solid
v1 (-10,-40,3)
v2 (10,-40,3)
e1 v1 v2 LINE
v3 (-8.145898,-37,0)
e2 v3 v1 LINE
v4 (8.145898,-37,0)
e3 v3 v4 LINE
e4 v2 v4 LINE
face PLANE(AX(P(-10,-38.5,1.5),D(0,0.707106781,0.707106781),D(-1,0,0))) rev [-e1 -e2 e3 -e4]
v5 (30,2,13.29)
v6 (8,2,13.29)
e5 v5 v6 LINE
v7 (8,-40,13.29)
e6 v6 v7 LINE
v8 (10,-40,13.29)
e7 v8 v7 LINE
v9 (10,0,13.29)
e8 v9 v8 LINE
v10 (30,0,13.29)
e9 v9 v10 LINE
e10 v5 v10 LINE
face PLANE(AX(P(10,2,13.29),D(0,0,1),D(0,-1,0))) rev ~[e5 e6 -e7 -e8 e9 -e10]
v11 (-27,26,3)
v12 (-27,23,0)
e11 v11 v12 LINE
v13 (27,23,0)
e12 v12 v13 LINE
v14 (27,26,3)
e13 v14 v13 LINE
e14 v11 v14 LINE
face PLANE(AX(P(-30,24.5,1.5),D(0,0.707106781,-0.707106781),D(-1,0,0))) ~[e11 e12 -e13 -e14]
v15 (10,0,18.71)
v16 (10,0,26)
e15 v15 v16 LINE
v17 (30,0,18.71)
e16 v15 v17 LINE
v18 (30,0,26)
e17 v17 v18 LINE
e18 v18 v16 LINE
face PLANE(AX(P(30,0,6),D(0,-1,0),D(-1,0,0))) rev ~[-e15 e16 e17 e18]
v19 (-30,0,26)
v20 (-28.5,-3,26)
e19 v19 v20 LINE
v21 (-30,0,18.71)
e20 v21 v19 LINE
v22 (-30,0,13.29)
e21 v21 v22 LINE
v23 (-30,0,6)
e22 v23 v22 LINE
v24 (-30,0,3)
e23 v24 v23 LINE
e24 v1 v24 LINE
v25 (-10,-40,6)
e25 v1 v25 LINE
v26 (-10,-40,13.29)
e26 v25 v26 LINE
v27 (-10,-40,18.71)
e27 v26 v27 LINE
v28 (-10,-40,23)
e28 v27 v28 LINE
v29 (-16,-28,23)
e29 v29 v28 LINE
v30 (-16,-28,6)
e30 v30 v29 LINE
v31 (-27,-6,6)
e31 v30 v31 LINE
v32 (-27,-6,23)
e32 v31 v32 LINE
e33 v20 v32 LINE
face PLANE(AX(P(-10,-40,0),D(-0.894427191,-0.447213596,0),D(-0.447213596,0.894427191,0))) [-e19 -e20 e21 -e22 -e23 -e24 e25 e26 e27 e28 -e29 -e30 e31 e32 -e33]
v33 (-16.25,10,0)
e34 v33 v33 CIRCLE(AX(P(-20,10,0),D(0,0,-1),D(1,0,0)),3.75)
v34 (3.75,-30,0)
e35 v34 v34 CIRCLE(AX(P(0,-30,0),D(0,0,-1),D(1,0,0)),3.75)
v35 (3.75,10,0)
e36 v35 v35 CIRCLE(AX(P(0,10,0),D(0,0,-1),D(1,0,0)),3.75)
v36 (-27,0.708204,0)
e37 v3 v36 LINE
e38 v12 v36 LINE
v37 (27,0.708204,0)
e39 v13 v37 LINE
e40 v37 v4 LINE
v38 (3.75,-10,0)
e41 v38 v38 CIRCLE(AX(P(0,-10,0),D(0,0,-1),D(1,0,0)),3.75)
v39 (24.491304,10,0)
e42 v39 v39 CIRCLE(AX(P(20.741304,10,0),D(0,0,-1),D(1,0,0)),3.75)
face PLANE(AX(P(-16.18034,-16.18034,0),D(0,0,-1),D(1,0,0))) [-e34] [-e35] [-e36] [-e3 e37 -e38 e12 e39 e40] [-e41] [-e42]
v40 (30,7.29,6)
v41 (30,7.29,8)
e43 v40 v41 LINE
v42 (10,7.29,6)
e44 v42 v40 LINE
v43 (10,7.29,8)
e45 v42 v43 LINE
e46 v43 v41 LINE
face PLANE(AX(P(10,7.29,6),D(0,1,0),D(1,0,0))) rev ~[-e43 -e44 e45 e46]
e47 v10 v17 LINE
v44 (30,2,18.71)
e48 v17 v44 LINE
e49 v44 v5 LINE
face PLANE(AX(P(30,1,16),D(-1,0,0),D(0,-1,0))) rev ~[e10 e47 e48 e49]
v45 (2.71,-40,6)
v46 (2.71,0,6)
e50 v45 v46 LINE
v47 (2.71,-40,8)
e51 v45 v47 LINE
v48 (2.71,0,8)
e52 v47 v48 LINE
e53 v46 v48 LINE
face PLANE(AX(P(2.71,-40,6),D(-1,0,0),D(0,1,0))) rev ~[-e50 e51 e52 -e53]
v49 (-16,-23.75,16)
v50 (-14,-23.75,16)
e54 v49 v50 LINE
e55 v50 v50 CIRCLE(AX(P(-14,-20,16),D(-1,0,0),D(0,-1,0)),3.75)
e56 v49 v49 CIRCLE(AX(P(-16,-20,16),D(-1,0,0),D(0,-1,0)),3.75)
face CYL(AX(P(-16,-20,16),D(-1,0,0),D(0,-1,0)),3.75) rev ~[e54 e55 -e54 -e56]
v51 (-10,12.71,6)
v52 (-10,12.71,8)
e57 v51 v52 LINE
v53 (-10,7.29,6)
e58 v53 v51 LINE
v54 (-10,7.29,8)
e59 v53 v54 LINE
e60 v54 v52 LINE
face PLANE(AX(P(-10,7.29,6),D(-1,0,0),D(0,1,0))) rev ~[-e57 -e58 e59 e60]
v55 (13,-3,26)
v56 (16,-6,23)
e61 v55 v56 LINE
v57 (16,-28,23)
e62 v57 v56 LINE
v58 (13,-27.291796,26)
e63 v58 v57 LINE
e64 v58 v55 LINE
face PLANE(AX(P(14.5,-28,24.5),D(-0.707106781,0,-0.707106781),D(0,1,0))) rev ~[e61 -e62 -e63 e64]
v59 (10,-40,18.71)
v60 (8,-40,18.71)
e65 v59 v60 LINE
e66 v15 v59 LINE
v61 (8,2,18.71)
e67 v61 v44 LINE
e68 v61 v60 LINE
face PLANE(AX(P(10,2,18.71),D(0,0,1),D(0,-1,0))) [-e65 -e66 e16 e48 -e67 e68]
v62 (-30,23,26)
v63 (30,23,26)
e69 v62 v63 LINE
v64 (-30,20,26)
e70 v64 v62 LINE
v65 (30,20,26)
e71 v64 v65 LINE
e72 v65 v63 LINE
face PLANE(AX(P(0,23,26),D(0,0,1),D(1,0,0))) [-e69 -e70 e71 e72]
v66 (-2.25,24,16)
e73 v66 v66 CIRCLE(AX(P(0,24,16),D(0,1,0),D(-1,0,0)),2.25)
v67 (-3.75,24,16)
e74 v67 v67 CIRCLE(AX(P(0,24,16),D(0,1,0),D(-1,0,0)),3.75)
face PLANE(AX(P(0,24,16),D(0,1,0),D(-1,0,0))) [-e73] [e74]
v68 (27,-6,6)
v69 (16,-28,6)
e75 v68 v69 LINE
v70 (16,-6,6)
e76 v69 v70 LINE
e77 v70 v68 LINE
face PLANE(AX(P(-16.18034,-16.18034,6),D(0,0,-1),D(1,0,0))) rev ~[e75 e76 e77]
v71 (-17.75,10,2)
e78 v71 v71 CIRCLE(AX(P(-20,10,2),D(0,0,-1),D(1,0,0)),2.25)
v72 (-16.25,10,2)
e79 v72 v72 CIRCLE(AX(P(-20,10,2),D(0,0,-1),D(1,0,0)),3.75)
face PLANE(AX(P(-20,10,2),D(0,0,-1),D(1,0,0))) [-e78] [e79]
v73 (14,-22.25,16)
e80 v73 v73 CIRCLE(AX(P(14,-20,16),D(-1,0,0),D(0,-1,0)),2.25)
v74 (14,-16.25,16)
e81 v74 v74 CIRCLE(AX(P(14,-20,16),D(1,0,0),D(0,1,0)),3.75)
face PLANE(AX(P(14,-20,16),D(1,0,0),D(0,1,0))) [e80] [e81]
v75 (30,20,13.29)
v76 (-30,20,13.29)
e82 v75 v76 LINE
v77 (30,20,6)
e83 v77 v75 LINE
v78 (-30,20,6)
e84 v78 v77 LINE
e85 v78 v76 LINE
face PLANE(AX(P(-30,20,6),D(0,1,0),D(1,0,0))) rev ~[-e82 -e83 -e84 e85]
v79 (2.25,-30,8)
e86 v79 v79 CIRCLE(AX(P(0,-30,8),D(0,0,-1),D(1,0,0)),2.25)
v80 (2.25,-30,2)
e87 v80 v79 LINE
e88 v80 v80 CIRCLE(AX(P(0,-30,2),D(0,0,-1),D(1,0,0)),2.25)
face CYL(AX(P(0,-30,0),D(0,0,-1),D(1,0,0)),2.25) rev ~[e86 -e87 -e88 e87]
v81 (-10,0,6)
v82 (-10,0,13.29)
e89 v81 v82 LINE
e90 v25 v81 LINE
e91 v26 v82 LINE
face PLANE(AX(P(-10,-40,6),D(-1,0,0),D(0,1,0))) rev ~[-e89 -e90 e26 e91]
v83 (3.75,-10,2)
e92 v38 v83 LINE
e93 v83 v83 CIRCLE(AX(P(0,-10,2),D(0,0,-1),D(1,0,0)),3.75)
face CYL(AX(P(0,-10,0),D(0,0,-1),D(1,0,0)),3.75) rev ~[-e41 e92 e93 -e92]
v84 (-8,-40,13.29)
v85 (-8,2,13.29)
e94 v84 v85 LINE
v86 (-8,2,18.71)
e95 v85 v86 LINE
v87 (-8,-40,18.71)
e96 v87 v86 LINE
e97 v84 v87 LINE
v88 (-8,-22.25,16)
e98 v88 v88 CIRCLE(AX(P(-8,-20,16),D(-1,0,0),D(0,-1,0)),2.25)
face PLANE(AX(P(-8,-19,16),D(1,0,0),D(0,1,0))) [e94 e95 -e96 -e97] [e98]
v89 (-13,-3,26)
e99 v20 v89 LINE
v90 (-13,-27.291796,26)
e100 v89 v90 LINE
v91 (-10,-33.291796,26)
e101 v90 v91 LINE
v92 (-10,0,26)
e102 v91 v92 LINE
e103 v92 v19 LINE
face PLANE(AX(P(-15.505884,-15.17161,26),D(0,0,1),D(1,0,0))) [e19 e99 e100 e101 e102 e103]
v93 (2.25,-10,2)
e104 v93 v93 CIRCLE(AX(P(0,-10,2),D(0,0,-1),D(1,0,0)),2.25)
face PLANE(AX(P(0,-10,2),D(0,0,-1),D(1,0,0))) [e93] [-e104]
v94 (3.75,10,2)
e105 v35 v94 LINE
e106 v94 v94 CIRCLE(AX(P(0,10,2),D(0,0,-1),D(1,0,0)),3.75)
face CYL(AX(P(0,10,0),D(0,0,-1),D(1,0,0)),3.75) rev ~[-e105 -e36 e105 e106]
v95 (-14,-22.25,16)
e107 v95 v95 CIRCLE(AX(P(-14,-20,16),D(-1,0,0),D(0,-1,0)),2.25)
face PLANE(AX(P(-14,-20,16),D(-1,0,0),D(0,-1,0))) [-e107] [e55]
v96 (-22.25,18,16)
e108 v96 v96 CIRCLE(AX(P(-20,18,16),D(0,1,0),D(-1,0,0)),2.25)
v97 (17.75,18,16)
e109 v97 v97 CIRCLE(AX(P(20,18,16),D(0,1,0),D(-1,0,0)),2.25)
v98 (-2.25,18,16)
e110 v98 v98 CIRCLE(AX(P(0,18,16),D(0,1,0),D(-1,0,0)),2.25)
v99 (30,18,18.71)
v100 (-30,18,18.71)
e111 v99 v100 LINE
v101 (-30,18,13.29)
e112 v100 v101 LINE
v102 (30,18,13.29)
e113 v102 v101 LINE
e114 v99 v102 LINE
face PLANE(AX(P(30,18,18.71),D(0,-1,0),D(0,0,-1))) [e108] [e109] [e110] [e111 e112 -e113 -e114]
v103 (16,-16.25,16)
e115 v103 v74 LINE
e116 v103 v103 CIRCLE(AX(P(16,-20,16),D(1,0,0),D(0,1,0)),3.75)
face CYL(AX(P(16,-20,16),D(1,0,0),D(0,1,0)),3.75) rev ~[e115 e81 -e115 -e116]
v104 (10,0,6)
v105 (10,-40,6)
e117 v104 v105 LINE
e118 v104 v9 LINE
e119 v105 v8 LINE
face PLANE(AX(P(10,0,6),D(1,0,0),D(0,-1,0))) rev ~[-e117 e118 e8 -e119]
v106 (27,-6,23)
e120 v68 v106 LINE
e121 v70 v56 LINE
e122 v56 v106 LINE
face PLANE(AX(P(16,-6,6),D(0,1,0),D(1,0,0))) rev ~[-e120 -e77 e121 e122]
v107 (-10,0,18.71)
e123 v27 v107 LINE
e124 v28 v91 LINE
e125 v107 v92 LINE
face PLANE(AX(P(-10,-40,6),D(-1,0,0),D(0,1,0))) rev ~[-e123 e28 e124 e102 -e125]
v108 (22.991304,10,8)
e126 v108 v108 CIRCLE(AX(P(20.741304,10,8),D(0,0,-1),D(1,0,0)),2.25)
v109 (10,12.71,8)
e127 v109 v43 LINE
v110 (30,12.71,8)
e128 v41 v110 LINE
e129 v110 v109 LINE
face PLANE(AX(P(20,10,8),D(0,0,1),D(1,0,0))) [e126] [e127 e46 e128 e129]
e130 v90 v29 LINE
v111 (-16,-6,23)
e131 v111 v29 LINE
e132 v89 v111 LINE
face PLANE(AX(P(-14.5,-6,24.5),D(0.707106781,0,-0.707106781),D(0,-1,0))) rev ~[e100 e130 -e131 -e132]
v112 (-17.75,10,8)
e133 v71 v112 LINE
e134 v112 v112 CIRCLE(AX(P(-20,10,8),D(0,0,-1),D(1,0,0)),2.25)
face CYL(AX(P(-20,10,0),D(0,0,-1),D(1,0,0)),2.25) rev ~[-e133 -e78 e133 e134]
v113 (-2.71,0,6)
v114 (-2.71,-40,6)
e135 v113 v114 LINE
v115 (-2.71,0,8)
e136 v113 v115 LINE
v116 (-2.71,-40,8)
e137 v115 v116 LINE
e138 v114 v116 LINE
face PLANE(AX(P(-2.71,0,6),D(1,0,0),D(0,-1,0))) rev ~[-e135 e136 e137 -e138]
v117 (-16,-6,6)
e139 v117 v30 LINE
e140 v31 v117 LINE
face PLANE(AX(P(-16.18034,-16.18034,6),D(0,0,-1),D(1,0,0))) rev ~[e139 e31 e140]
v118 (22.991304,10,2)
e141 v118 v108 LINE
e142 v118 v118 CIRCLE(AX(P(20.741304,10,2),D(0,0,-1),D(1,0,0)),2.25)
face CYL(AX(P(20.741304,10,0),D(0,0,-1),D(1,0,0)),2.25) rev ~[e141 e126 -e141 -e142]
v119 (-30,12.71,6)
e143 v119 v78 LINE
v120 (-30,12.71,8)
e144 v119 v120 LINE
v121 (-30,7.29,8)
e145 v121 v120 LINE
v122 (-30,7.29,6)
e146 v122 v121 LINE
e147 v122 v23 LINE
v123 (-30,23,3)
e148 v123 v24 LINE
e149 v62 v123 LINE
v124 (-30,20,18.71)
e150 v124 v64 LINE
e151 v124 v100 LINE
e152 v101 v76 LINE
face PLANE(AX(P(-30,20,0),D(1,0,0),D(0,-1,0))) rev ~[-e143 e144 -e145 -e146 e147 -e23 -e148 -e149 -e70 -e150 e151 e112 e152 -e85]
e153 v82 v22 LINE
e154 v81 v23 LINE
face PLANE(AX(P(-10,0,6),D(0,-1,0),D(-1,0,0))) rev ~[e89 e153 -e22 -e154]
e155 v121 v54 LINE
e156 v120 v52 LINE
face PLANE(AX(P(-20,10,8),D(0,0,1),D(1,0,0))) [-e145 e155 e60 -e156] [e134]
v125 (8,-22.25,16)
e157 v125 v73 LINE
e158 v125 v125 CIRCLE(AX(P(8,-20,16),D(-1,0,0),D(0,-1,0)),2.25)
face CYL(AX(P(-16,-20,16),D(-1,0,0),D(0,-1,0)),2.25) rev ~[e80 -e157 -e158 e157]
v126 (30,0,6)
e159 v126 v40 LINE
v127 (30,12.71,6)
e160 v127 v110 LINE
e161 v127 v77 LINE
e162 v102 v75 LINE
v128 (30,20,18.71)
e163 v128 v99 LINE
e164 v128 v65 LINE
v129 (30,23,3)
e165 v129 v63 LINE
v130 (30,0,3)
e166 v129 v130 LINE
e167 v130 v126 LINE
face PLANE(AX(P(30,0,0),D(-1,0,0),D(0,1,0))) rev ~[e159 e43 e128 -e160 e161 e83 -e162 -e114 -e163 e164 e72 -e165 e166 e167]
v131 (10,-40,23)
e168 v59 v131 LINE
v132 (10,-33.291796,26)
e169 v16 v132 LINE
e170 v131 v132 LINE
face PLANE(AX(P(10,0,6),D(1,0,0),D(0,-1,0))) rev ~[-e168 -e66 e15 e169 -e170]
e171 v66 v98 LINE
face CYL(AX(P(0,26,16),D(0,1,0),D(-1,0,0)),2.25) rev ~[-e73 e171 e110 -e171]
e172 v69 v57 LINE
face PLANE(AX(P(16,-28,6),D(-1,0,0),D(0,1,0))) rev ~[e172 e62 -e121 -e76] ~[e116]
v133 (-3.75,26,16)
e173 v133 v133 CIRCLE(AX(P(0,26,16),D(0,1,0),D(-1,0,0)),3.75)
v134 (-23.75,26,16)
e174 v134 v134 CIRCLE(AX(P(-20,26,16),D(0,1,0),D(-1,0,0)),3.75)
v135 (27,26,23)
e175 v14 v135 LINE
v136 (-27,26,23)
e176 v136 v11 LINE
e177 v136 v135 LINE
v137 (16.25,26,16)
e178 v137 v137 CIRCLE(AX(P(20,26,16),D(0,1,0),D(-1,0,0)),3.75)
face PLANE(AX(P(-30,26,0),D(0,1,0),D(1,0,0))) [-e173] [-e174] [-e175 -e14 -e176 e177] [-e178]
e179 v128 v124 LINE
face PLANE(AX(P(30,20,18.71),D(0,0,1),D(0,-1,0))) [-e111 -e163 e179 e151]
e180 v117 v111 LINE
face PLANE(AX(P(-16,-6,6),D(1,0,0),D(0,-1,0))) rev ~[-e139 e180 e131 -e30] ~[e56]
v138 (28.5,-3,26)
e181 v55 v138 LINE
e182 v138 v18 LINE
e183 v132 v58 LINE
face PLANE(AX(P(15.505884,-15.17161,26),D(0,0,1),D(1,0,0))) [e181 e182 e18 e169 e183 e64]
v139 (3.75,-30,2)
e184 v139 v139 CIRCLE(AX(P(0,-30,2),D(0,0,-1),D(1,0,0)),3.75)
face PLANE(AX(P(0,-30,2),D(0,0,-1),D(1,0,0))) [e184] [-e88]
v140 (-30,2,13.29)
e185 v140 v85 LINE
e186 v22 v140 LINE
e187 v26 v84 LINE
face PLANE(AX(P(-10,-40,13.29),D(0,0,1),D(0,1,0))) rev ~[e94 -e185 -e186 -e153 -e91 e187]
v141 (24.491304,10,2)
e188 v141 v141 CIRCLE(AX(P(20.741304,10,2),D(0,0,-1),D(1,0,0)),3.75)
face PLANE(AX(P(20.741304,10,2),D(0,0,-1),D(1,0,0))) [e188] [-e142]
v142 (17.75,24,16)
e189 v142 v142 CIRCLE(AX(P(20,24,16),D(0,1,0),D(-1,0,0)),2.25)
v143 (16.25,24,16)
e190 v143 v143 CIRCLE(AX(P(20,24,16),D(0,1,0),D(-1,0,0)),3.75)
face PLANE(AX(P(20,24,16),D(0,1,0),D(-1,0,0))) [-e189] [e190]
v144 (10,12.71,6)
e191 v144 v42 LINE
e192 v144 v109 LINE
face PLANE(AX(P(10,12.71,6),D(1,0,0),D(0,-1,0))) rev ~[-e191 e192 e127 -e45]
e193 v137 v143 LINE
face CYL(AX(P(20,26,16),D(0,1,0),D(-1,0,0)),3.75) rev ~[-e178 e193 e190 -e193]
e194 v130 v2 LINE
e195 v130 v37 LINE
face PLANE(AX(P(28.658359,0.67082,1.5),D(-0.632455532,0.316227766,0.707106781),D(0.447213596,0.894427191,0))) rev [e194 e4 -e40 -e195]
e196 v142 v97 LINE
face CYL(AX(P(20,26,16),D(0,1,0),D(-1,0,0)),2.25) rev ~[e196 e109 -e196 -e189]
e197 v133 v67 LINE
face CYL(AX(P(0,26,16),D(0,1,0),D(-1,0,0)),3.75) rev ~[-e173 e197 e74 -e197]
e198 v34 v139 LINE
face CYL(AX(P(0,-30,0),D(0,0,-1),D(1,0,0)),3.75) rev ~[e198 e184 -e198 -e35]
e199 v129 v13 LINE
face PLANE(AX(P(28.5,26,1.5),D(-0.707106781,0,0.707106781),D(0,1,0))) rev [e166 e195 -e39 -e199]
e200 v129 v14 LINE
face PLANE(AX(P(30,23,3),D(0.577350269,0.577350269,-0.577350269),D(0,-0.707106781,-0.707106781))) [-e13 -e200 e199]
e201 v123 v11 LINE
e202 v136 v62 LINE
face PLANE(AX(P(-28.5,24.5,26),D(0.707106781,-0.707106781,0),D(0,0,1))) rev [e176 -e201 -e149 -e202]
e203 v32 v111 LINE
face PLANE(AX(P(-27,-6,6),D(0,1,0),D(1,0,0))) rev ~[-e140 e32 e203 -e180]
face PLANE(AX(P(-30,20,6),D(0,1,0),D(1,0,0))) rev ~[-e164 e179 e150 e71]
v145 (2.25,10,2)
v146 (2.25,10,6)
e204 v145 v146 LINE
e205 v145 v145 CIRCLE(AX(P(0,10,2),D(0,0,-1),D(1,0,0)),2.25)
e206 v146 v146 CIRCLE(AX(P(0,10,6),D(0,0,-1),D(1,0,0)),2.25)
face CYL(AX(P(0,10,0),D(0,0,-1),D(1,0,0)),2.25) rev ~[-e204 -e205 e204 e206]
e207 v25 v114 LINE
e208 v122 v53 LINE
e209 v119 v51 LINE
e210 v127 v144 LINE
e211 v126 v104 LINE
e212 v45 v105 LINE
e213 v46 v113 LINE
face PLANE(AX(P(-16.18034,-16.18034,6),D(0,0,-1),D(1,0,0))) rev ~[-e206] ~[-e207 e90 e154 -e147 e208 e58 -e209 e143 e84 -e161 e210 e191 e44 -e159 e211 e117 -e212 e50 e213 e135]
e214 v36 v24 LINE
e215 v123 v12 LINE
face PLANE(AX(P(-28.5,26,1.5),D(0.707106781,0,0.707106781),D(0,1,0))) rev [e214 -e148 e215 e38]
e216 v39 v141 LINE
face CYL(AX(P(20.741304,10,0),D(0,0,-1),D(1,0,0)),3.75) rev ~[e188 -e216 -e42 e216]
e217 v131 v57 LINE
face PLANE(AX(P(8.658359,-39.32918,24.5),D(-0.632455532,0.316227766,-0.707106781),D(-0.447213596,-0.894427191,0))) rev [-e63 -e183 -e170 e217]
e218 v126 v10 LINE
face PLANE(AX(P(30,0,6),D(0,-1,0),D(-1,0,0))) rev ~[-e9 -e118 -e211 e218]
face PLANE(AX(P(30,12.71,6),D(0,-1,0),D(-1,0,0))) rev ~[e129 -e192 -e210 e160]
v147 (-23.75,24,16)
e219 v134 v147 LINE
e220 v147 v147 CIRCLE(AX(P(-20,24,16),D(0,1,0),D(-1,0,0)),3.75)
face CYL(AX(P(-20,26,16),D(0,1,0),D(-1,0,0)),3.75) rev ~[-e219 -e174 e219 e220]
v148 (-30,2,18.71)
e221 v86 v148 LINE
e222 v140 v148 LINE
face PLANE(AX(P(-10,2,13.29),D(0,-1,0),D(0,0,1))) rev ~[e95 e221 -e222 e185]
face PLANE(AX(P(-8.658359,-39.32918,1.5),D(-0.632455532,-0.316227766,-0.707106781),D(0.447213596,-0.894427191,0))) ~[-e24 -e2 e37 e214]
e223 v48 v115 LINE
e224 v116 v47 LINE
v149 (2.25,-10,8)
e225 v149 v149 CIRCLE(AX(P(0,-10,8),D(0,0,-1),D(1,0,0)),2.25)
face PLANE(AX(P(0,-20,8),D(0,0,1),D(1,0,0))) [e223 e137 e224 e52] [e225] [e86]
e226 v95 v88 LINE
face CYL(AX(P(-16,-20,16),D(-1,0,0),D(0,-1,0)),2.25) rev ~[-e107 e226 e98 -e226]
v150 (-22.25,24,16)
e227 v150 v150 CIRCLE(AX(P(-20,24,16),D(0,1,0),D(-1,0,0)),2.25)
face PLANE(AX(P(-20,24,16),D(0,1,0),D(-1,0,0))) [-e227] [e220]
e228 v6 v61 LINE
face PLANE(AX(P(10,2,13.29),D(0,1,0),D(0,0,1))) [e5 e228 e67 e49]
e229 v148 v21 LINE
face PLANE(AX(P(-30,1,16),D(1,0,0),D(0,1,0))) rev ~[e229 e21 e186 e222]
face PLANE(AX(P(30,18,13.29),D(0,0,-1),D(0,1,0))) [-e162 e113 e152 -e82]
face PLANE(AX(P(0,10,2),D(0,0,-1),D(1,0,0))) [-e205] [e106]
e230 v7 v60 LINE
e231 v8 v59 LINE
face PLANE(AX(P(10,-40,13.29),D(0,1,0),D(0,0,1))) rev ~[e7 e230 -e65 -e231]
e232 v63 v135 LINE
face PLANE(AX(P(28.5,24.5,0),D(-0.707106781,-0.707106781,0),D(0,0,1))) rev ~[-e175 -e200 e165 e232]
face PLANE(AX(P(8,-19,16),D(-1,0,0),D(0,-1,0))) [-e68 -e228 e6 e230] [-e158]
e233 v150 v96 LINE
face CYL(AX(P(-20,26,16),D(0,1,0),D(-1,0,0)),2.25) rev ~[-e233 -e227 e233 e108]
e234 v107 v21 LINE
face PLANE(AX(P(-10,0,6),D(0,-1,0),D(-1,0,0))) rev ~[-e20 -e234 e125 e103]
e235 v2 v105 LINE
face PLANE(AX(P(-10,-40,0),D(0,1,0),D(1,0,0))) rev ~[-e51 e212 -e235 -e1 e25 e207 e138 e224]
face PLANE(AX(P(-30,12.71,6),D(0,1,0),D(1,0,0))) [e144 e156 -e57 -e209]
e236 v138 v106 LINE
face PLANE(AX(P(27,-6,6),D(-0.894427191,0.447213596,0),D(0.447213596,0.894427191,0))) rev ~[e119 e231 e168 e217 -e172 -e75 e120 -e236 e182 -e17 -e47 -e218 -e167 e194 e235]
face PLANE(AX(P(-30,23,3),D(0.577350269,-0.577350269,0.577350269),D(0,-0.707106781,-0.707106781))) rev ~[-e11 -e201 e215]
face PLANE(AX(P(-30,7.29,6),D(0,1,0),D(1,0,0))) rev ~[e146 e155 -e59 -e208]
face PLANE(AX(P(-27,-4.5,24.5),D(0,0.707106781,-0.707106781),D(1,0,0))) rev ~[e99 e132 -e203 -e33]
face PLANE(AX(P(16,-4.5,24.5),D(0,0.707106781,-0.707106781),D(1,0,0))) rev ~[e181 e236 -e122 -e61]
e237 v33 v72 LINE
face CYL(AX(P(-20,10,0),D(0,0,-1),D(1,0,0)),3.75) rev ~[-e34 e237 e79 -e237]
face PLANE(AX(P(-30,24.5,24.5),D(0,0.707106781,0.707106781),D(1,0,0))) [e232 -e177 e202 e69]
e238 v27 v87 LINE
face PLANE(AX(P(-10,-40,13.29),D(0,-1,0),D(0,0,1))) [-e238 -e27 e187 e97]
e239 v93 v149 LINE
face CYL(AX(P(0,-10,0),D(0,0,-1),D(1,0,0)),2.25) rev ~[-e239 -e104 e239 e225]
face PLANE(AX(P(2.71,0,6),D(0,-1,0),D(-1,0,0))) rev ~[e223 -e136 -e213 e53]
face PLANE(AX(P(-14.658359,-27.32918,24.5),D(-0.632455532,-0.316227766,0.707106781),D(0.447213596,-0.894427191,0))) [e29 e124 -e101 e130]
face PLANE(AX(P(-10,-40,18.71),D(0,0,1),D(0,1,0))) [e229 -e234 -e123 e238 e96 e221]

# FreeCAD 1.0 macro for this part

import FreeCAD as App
import Part
import Sketcher

V = App.Vector


def edges_at(feature, points):
    """Names of the edges that pass closest to the given points."""
    edges = feature.Shape.Edges
    near = lambda p: min(range(len(edges)), key=lambda i: edges[i].distToShape(Part.Vertex(*p))[0])
    return sorted({f"Edge{near(p) + 1}" for p in points})

doc = App.newDocument("Part")
body = doc.addObject("PartDesign::Body", "Body")

# Sketch on XY plane
sketch1 = body.newObject("Sketcher::SketchObject", "Sketch")
sketch1.AttachmentSupport = (doc.getObject("XY_Plane"), [""])
sketch1.MapMode = "FlatFace"
sketch1.addGeometry([
    Part.LineSegment(V(-30, 0, 0), V(-10, 0, 0)),  # 0
    Part.LineSegment(V(-10, 0, 0), V(-10, -40, 0)),  # 1
    Part.LineSegment(V(-10, -40, 0), V(10, -40, 0)),  # 2
    Part.LineSegment(V(10, -40, 0), V(10, 0, 0)),  # 3
    Part.LineSegment(V(10, 0, 0), V(30, 0, 0)),  # 4
    Part.LineSegment(V(30, 0, 0), V(30, 20, 0)),  # 5
    Part.LineSegment(V(30, 20, 0), V(-30, 20, 0)),  # 6
    Part.LineSegment(V(-30, 20, 0), V(-30, 0, 0)),  # 7
], False)
sketch1.addConstraint([
    Sketcher.Constraint("Coincident", 0, 2, 1, 1),
    Sketcher.Constraint("Coincident", 1, 2, 2, 1),
    Sketcher.Constraint("Coincident", 2, 2, 3, 1),
    Sketcher.Constraint("Coincident", 3, 2, 4, 1),
    Sketcher.Constraint("Coincident", 4, 2, 5, 1),
    Sketcher.Constraint("Coincident", 5, 2, 6, 1),
    Sketcher.Constraint("Coincident", 6, 2, 7, 1),
    Sketcher.Constraint("Coincident", 7, 2, 0, 1),
    Sketcher.Constraint("Horizontal", 0),
    Sketcher.Constraint("Vertical", 1),
    Sketcher.Constraint("Horizontal", 2),
    Sketcher.Constraint("Vertical", 3),
    Sketcher.Constraint("Horizontal", 4),
    Sketcher.Constraint("Vertical", 5),
    Sketcher.Constraint("Horizontal", 6),
    Sketcher.Constraint("Vertical", 7),
    Sketcher.Constraint("Symmetric", 0, 2, 3, 2, -1, 1),
    Sketcher.Constraint("Symmetric", 4, 2, 7, 2, -2),
    Sketcher.Constraint("Equal", 0, 2),
    Sketcher.Constraint("Equal", 4, 5),
    Sketcher.Constraint("DistanceX", 0, 1, 0, 2, 20.0),
    Sketcher.Constraint("DistanceY", 1, 2, 1, 1, 40.0),
])
pad1 = body.newObject("PartDesign::Pad", "Pad")
pad1.Profile = sketch1
pad1.Length = 6

# Sketch on XY plane
sketch2 = body.newObject("Sketcher::SketchObject", "Sketch001")
sketch2.AttachmentSupport = (doc.getObject("XY_Plane"), [""])
sketch2.MapMode = "FlatFace"
sketch2.AttachmentOffset = App.Placement(V(0, 0, 6), App.Rotation())
sketch2.addGeometry([
    Part.LineSegment(V(2.71, 0, 0), V(-2.71, 0, 0)),  # 0
    Part.LineSegment(V(-2.71, 0, 0), V(-2.71, -40, 0)),  # 1
    Part.LineSegment(V(-2.71, -40, 0), V(2.71, -40, 0)),  # 2
    Part.LineSegment(V(2.71, -40, 0), V(2.71, 0, 0)),  # 3
    Part.LineSegment(V(10, 12.71, 0), V(10, 7.29, 0)),  # 4
    Part.LineSegment(V(10, 7.29, 0), V(30, 7.29, 0)),  # 5
    Part.LineSegment(V(30, 7.29, 0), V(30, 12.71, 0)),  # 6
    Part.LineSegment(V(30, 12.71, 0), V(10, 12.71, 0)),  # 7
    Part.LineSegment(V(-30, 12.71, 0), V(-30, 7.29, 0)),  # 8
    Part.LineSegment(V(-30, 7.29, 0), V(-10, 7.29, 0)),  # 9
    Part.LineSegment(V(-10, 7.29, 0), V(-10, 12.71, 0)),  # 10
    Part.LineSegment(V(-10, 12.71, 0), V(-30, 12.71, 0)),  # 11
], False)
sketch2.addConstraint([
    Sketcher.Constraint("Coincident", 0, 2, 1, 1),
    Sketcher.Constraint("Coincident", 1, 2, 2, 1),
    Sketcher.Constraint("Coincident", 2, 2, 3, 1),
    Sketcher.Constraint("Coincident", 3, 2, 0, 1),
    Sketcher.Constraint("Coincident", 4, 2, 5, 1),
    Sketcher.Constraint("Coincident", 5, 2, 6, 1),
    Sketcher.Constraint("Coincident", 6, 2, 7, 1),
    Sketcher.Constraint("Coincident", 7, 2, 4, 1),
    Sketcher.Constraint("Coincident", 8, 2, 9, 1),
    Sketcher.Constraint("Coincident", 9, 2, 10, 1),
    Sketcher.Constraint("Coincident", 10, 2, 11, 1),
    Sketcher.Constraint("Coincident", 11, 2, 8, 1),
    Sketcher.Constraint("Horizontal", 0),
    Sketcher.Constraint("Vertical", 1),
    Sketcher.Constraint("Horizontal", 2),
    Sketcher.Constraint("Vertical", 3),
    Sketcher.Constraint("Vertical", 4),
    Sketcher.Constraint("Horizontal", 5),
    Sketcher.Constraint("Vertical", 6),
    Sketcher.Constraint("Horizontal", 7),
    Sketcher.Constraint("Vertical", 8),
    Sketcher.Constraint("Horizontal", 9),
    Sketcher.Constraint("Vertical", 10),
    Sketcher.Constraint("Horizontal", 11),
    Sketcher.Constraint("Symmetric", 0, 2, 3, 2, -1, 1),
    Sketcher.Constraint("Symmetric", 5, 2, 8, 2, -2),
    Sketcher.Constraint("Symmetric", 7, 2, 10, 2, -2),
    Sketcher.Constraint("Equal", 2, 4),
    Sketcher.Constraint("DistanceX", 5, 1, 5, 2, 20.0),
    Sketcher.Constraint("DistanceY", 1, 2, 1, 1, 40.0),
    Sketcher.Constraint("DistanceX", -1, 1, 4, 2, 10.0),
    Sketcher.Constraint("DistanceX", 0, 2, 0, 1, 5.42),
    Sketcher.Constraint("DistanceY", -1, 1, 4, 2, 7.29),
])
pad2 = body.newObject("PartDesign::Pad", "Pad001")
pad2.Profile = sketch2
pad2.Length = 2

# Sketch on XY plane
sketch3 = body.newObject("Sketcher::SketchObject", "Sketch002")
sketch3.AttachmentSupport = (doc.getObject("XY_Plane"), [""])
sketch3.MapMode = "FlatFace"
sketch3.addGeometry([
    Part.Circle(V(-20, 10, 0), V(0, 0, 1), 2.25),  # 0
    Part.Circle(V(0, -10, 0), V(0, 0, 1), 2.25),  # 1
    Part.Circle(V(0, -30, 0), V(0, 0, 1), 2.25),  # 2
    Part.Circle(V(20.741304, 10, 0), V(0, 0, 1), 2.25),  # 3
    Part.Circle(V(0, 10, 0), V(0, 0, 1), 2.25),  # 4
], False)
sketch3.addConstraint([
    Sketcher.Constraint("Equal", 0, 1),
    Sketcher.Constraint("Equal", 1, 2),
    Sketcher.Constraint("Equal", 2, 3),
    Sketcher.Constraint("Equal", 3, 4),
    Sketcher.Constraint("Symmetric", 1, 3, 4, 3, -1, 1),
    Sketcher.Constraint("PointOnObject", 1, 3, -2),
    Sketcher.Constraint("PointOnObject", 2, 3, -2),
    Sketcher.Constraint("Horizontal", 0, 3, 3, 3),
    Sketcher.Constraint("Horizontal", 3, 3, 4, 3),
    Sketcher.Constraint("Diameter", 0, 4.5),
    Sketcher.Constraint("DistanceX", 0, 3, -1, 1, 20.0),
    Sketcher.Constraint("DistanceY", -1, 1, 0, 3, 10.0),
    Sketcher.Constraint("DistanceY", 2, 3, -1, 1, 30.0),
    Sketcher.Constraint("DistanceX", -1, 1, 3, 3, 20.741304),
])
pocket1 = body.newObject("PartDesign::Pocket", "Pocket")
pocket1.Profile = sketch3
pocket1.Type = "ThroughAll"
pocket1.Reversed = True

# Sketch on XY plane
sketch4 = body.newObject("Sketcher::SketchObject", "Sketch003")
sketch4.AttachmentSupport = (doc.getObject("XY_Plane"), [""])
sketch4.MapMode = "FlatFace"
sketch4.addGeometry([
    Part.Circle(V(0, -30, 0), V(0, 0, 1), 3.75),  # 0
    Part.Circle(V(0, -10, 0), V(0, 0, 1), 3.75),  # 1
    Part.Circle(V(20.741304, 10, 0), V(0, 0, 1), 3.75),  # 2
    Part.Circle(V(-20, 10, 0), V(0, 0, 1), 3.75),  # 3
    Part.Circle(V(0, 10, 0), V(0, 0, 1), 3.75),  # 4
], False)
sketch4.addConstraint([
    Sketcher.Constraint("Equal", 0, 1),
    Sketcher.Constraint("Equal", 1, 2),
    Sketcher.Constraint("Equal", 2, 3),
    Sketcher.Constraint("Equal", 3, 4),
    Sketcher.Constraint("Symmetric", 1, 3, 4, 3, -1, 1),
    Sketcher.Constraint("PointOnObject", 0, 3, -2),
    Sketcher.Constraint("PointOnObject", 1, 3, -2),
    Sketcher.Constraint("Horizontal", 2, 3, 3, 3),
    Sketcher.Constraint("Horizontal", 3, 3, 4, 3),
    Sketcher.Constraint("Diameter", 0, 7.5),
    Sketcher.Constraint("DistanceY", 0, 3, -1, 1, 30.0),
    Sketcher.Constraint("DistanceY", 1, 3, -1, 1, 10.0),
    Sketcher.Constraint("DistanceX", 3, 3, -1, 1, 20.0),
    Sketcher.Constraint("DistanceX", -1, 1, 2, 3, 20.741304),
])
pocket2 = body.newObject("PartDesign::Pocket", "Pocket001")
pocket2.Profile = sketch4
pocket2.Length = 2
pocket2.Reversed = True

# Sketch on XY plane
sketch5 = body.newObject("Sketcher::SketchObject", "Sketch004")
sketch5.AttachmentSupport = (doc.getObject("XY_Plane"), [""])
sketch5.MapMode = "FlatFace"
sketch5.addGeometry([
    Part.LineSegment(V(-10, 0, 0), V(-10, -40, 0)),  # 0
    Part.LineSegment(V(-10, -40, 0), V(-30, 0, 0)),  # 1
    Part.LineSegment(V(-30, 0, 0), V(-10, 0, 0)),  # 2
    Part.LineSegment(V(30, 0, 0), V(10, -40, 0)),  # 3
    Part.LineSegment(V(10, -40, 0), V(10, 0, 0)),  # 4
    Part.LineSegment(V(10, 0, 0), V(30, 0, 0)),  # 5
    Part.LineSegment(V(-30, 20, 0), V(-30, 26, 0)),  # 6
    Part.LineSegment(V(-30, 26, 0), V(30, 26, 0)),  # 7
    Part.LineSegment(V(30, 26, 0), V(30, 20, 0)),  # 8
    Part.LineSegment(V(30, 20, 0), V(-30, 20, 0)),  # 9
], False)
sketch5.addConstraint([
    Sketcher.Constraint("Coincident", 0, 2, 1, 1),
    Sketcher.Constraint("Coincident", 1, 2, 2, 1),
    Sketcher.Constraint("Coincident", 2, 2, 0, 1),
    Sketcher.Constraint("Coincident", 3, 2, 4, 1),
    Sketcher.Constraint("Coincident", 4, 2, 5, 1),
    Sketcher.Constraint("Coincident", 5, 2, 3, 1),
    Sketcher.Constraint("Coincident", 6, 2, 7, 1),
    Sketcher.Constraint("Coincident", 7, 2, 8, 1),
    Sketcher.Constraint("Coincident", 8, 2, 9, 1),
    Sketcher.Constraint("Coincident", 9, 2, 6, 1),
    Sketcher.Constraint("Vertical", 0),
    Sketcher.Constraint("Horizontal", 2),
    Sketcher.Constraint("Vertical", 4),
    Sketcher.Constraint("Horizontal", 5),
    Sketcher.Constraint("Vertical", 6),
    Sketcher.Constraint("Horizontal", 7),
    Sketcher.Constraint("Vertical", 8),
    Sketcher.Constraint("Horizontal", 9),
    Sketcher.Constraint("Symmetric", 2, 2, 4, 2, -1, 1),
    Sketcher.Constraint("Symmetric", 1, 2, 5, 2, -2),
    Sketcher.Constraint("Horizontal", 0, 2, 3, 2),
    Sketcher.Constraint("Vertical", 1, 2, 6, 2),
    Sketcher.Constraint("Vertical", 5, 2, 7, 2),
    Sketcher.Constraint("DistanceX", 2, 1, 2, 2, 20.0),
    Sketcher.Constraint("DistanceX", 7, 1, 7, 2, 60.0),
    Sketcher.Constraint("DistanceY", 0, 2, 0, 1, 40.0),
    Sketcher.Constraint("DistanceY", 6, 1, 6, 2, 6.0),
    Sketcher.Constraint("DistanceY", -1, 1, 6, 2, 26.0),
])
pad3 = body.newObject("PartDesign::Pad", "Pad002")
pad3.Profile = sketch5
pad3.Length = 6

# Sketch on XY plane
sketch6 = body.newObject("Sketcher::SketchObject", "Sketch005")
sketch6.AttachmentSupport = (doc.getObject("XY_Plane"), [""])
sketch6.MapMode = "FlatFace"
sketch6.AttachmentOffset = App.Placement(V(0, 0, 6), App.Rotation())
sketch6.addGeometry([
    Part.LineSegment(V(30, 0, 0), V(10, 0, 0)),  # 0
    Part.LineSegment(V(10, 0, 0), V(10, -40, 0)),  # 1
    Part.LineSegment(V(10, -40, 0), V(16, -28, 0)),  # 2
    Part.LineSegment(V(16, -28, 0), V(16, -6, 0)),  # 3
    Part.LineSegment(V(16, -6, 0), V(27, -6, 0)),  # 4
    Part.LineSegment(V(27, -6, 0), V(30, 0, 0)),  # 5
    Part.LineSegment(V(-10, -40, 0), V(-10, 0, 0)),  # 6
    Part.LineSegment(V(-10, 0, 0), V(-30, 0, 0)),  # 7
    Part.LineSegment(V(-30, 0, 0), V(-27, -6, 0)),  # 8
    Part.LineSegment(V(-27, -6, 0), V(-16, -6, 0)),  # 9
    Part.LineSegment(V(-16, -6, 0), V(-16, -28, 0)),  # 10
    Part.LineSegment(V(-16, -28, 0), V(-10, -40, 0)),  # 11
    Part.LineSegment(V(-30, 26, 0), V(-30, 20, 0)),  # 12
    Part.LineSegment(V(-30, 20, 0), V(30, 20, 0)),  # 13
    Part.LineSegment(V(30, 20, 0), V(30, 26, 0)),  # 14
    Part.LineSegment(V(30, 26, 0), V(-30, 26, 0)),  # 15
], False)
sketch6.addConstraint([
    Sketcher.Constraint("Coincident", 0, 2, 1, 1),
    Sketcher.Constraint("Coincident", 1, 2, 2, 1),
    Sketcher.Constraint("Coincident", 2, 2, 3, 1),
    Sketcher.Constraint("Coincident", 3, 2, 4, 1),
    Sketcher.Constraint("Coincident", 4, 2, 5, 1),
    Sketcher.Constraint("Coincident", 5, 2, 0, 1),
    Sketcher.Constraint("Coincident", 6, 2, 7, 1),
    Sketcher.Constraint("Coincident", 7, 2, 8, 1),
    Sketcher.Constraint("Coincident", 8, 2, 9, 1),
    Sketcher.Constraint("Coincident", 9, 2, 10, 1),
    Sketcher.Constraint("Coincident", 10, 2, 11, 1),
    Sketcher.Constraint("Coincident", 11, 2, 6, 1),
    Sketcher.Constraint("Coincident", 12, 2, 13, 1),
    Sketcher.Constraint("Coincident", 13, 2, 14, 1),
    Sketcher.Constraint("Coincident", 14, 2, 15, 1),
    Sketcher.Constraint("Coincident", 15, 2, 12, 1),
    Sketcher.Constraint("Horizontal", 0),
    Sketcher.Constraint("Vertical", 1),
    Sketcher.Constraint("Vertical", 3),
    Sketcher.Constraint("Horizontal", 4),
    Sketcher.Constraint("Vertical", 6),
    Sketcher.Constraint("Horizontal", 7),
    Sketcher.Constraint("Horizontal", 9),
    Sketcher.Constraint("Vertical", 10),
    Sketcher.Constraint("Vertical", 12),
    Sketcher.Constraint("Horizontal", 13),
    Sketcher.Constraint("Vertical", 14),
    Sketcher.Constraint("Horizontal", 15),
    Sketcher.Constraint("Symmetric", 0, 2, 6, 2, -1, 1),
    Sketcher.Constraint("Symmetric", 5, 2, 7, 2, -2),
    Sketcher.Constraint("Symmetric", 4, 2, 8, 2, -2),
    Sketcher.Constraint("Symmetric", 2, 2, 10, 2, -2),
    Sketcher.Constraint("Parallel", 2, 5),
    Sketcher.Constraint("Parallel", 8, 11),
    Sketcher.Constraint("Vertical", 7, 2, 12, 2),
    Sketcher.Constraint("Vertical", 5, 2, 13, 2),
    Sketcher.Constraint("DistanceX", 0, 2, 0, 1, 20.0),
    Sketcher.Constraint("DistanceX", 4, 1, 4, 2, 11.0),
    Sketcher.Constraint("DistanceX", 13, 1, 13, 2, 60.0),
    Sketcher.Constraint("DistanceY", 1, 2, 1, 1, 40.0),
    Sketcher.Constraint("DistanceY", 3, 1, 3, 2, 22.0),
    Sketcher.Constraint("DistanceY", 12, 2, 12, 1, 6.0),
    Sketcher.Constraint("DistanceX", -1, 1, 2, 2, 16.0),
    Sketcher.Constraint("DistanceY", -1, 1, 12, 2, 20.0),
])
pad4 = body.newObject("PartDesign::Pad", "Pad003")
pad4.Profile = sketch6
pad4.Length = 20

# Sketch on YZ plane
sketch7 = body.newObject("Sketcher::SketchObject", "Sketch006")
sketch7.AttachmentSupport = (doc.getObject("YZ_Plane"), [""])
sketch7.MapMode = "FlatFace"
sketch7.AttachmentOffset = App.Placement(V(0, 0, 30), App.Rotation())
sketch7.addGeometry([
    Part.LineSegment(V(20, 13.29, 0), V(20, 18.71, 0)),
    Part.LineSegment(V(20, 18.71, 0), V(18, 18.71, 0)),
    Part.LineSegment(V(18, 18.71, 0), V(18, 13.29, 0)),
    Part.LineSegment(V(18, 13.29, 0), V(20, 13.29, 0)),
], False)
sketch7.addConstraint([
    Sketcher.Constraint("Coincident", 0, 2, 1, 1),
    Sketcher.Constraint("Coincident", 1, 2, 2, 1),
    Sketcher.Constraint("Coincident", 2, 2, 3, 1),
    Sketcher.Constraint("Coincident", 3, 2, 0, 1),
    Sketcher.Constraint("Vertical", 0),
    Sketcher.Constraint("Horizontal", 1),
    Sketcher.Constraint("Vertical", 2),
    Sketcher.Constraint("Horizontal", 3),
    Sketcher.Constraint("DistanceX", 1, 2, 1, 1, 2.0),
    Sketcher.Constraint("DistanceX", -1, 1, 0, 2, 20.0),
    Sketcher.Constraint("DistanceY", 0, 1, 0, 2, 5.42),
    Sketcher.Constraint("DistanceY", -1, 1, 0, 2, 18.71),
])
pad5 = body.newObject("PartDesign::Pad", "Pad004")
pad5.Profile = sketch7
pad5.Length = 60
pad5.Reversed = True

# Sketch on YZ plane
sketch8 = body.newObject("Sketcher::SketchObject", "Sketch007")
sketch8.AttachmentSupport = (doc.getObject("YZ_Plane"), [""])
sketch8.MapMode = "FlatFace"
sketch8.AttachmentOffset = App.Placement(V(0, 0, -10), App.Rotation())
sketch8.addGeometry([
    Part.LineSegment(V(0, 18.71, 0), V(0, 13.29, 0)),
    Part.LineSegment(V(0, 13.29, 0), V(2, 13.29, 0)),
    Part.LineSegment(V(2, 13.29, 0), V(2, 18.71, 0)),
    Part.LineSegment(V(2, 18.71, 0), V(0, 18.71, 0)),
], False)
sketch8.addConstraint([
    Sketcher.Constraint("Coincident", 0, 2, 1, 1),
    Sketcher.Constraint("Coincident", 1, 2, 2, 1),
    Sketcher.Constraint("Coincident", 2, 2, 3, 1),
    Sketcher.Constraint("Coincident", 3, 2, 0, 1),
    Sketcher.Constraint("Vertical", 0),
    Sketcher.Constraint("Horizontal", 1),
    Sketcher.Constraint("Vertical", 2),
    Sketcher.Constraint("Horizontal", 3),
    Sketcher.Constraint("PointOnObject", 0, 2, -2),
    Sketcher.Constraint("DistanceX", 1, 1, 1, 2, 2.0),
    Sketcher.Constraint("DistanceY", 0, 2, 0, 1, 5.42),
    Sketcher.Constraint("DistanceY", -1, 1, 0, 2, 13.29),
])
pad6 = body.newObject("PartDesign::Pad", "Pad005")
pad6.Profile = sketch8
pad6.Length = 20
pad6.Reversed = True

# Sketch on YZ plane
sketch9 = body.newObject("Sketcher::SketchObject", "Sketch008")
sketch9.AttachmentSupport = (doc.getObject("YZ_Plane"), [""])
sketch9.MapMode = "FlatFace"
sketch9.AttachmentOffset = App.Placement(V(0, 0, -10), App.Rotation())
sketch9.addGeometry([
    Part.LineSegment(V(-40, 18.71, 0), V(-40, 13.29, 0)),
    Part.LineSegment(V(-40, 13.29, 0), V(2, 13.29, 0)),
    Part.LineSegment(V(2, 13.29, 0), V(2, 18.71, 0)),
    Part.LineSegment(V(2, 18.71, 0), V(-40, 18.71, 0)),
], False)
sketch9.addConstraint([
    Sketcher.Constraint("Coincident", 0, 2, 1, 1),
    Sketcher.Constraint("Coincident", 1, 2, 2, 1),
    Sketcher.Constraint("Coincident", 2, 2, 3, 1),
    Sketcher.Constraint("Coincident", 3, 2, 0, 1),
    Sketcher.Constraint("Vertical", 0),
    Sketcher.Constraint("Horizontal", 1),
    Sketcher.Constraint("Vertical", 2),
    Sketcher.Constraint("Horizontal", 3),
    Sketcher.Constraint("DistanceX", 1, 1, 1, 2, 42.0),
    Sketcher.Constraint("DistanceX", 0, 2, -1, 1, 40.0),
    Sketcher.Constraint("DistanceY", 0, 2, 0, 1, 5.42),
    Sketcher.Constraint("DistanceY", -1, 1, 0, 2, 13.29),
])
pad7 = body.newObject("PartDesign::Pad", "Pad006")
pad7.Profile = sketch9
pad7.Length = 2

# Sketch on YZ plane
sketch10 = body.newObject("Sketcher::SketchObject", "Sketch009")
sketch10.AttachmentSupport = (doc.getObject("YZ_Plane"), [""])
sketch10.MapMode = "FlatFace"
sketch10.AttachmentOffset = App.Placement(V(0, 0, 10), App.Rotation())
sketch10.addGeometry([
    Part.LineSegment(V(0, 13.29, 0), V(0, 18.71, 0)),
    Part.LineSegment(V(0, 18.71, 0), V(2, 18.71, 0)),
    Part.LineSegment(V(2, 18.71, 0), V(2, 13.29, 0)),
    Part.LineSegment(V(2, 13.29, 0), V(0, 13.29, 0)),
], False)
sketch10.addConstraint([
    Sketcher.Constraint("Coincident", 0, 2, 1, 1),
    Sketcher.Constraint("Coincident", 1, 2, 2, 1),
    Sketcher.Constraint("Coincident", 2, 2, 3, 1),
    Sketcher.Constraint("Coincident", 3, 2, 0, 1),
    Sketcher.Constraint("Vertical", 0),
    Sketcher.Constraint("Horizontal", 1),
    Sketcher.Constraint("Vertical", 2),
    Sketcher.Constraint("Horizontal", 3),
    Sketcher.Constraint("PointOnObject", 0, 2, -2),
    Sketcher.Constraint("DistanceX", 1, 1, 1, 2, 2.0),
    Sketcher.Constraint("DistanceY", 0, 1, 0, 2, 5.42),
    Sketcher.Constraint("DistanceY", -1, 1, 0, 2, 18.71),
])
pad8 = body.newObject("PartDesign::Pad", "Pad007")
pad8.Profile = sketch10
pad8.Length = 20

# Sketch on YZ plane
sketch11 = body.newObject("Sketcher::SketchObject", "Sketch010")
sketch11.AttachmentSupport = (doc.getObject("YZ_Plane"), [""])
sketch11.MapMode = "FlatFace"
sketch11.AttachmentOffset = App.Placement(V(0, 0, 10), App.Rotation())
sketch11.addGeometry([
    Part.LineSegment(V(2, 18.71, 0), V(2, 13.29, 0)),
    Part.LineSegment(V(2, 13.29, 0), V(-40, 13.29, 0)),
    Part.LineSegment(V(-40, 13.29, 0), V(-40, 18.71, 0)),
    Part.LineSegment(V(-40, 18.71, 0), V(2, 18.71, 0)),
], False)
sketch11.addConstraint([
    Sketcher.Constraint("Coincident", 0, 2, 1, 1),
    Sketcher.Constraint("Coincident", 1, 2, 2, 1),
    Sketcher.Constraint("Coincident", 2, 2, 3, 1),
    Sketcher.Constraint("Coincident", 3, 2, 0, 1),
    Sketcher.Constraint("Vertical", 0),
    Sketcher.Constraint("Horizontal", 1),
    Sketcher.Constraint("Vertical", 2),
    Sketcher.Constraint("Horizontal", 3),
    Sketcher.Constraint("DistanceX", 1, 2, 1, 1, 42.0),
    Sketcher.Constraint("DistanceX", -1, 1, 0, 2, 2.0),
    Sketcher.Constraint("DistanceY", 0, 2, 0, 1, 5.42),
    Sketcher.Constraint("DistanceY", -1, 1, 0, 2, 13.29),
])
pad9 = body.newObject("PartDesign::Pad", "Pad008")
pad9.Profile = sketch11
pad9.Length = 2
pad9.Reversed = True

# Sketch on YZ plane
sketch12 = body.newObject("Sketcher::SketchObject", "Sketch011")
sketch12.AttachmentSupport = (doc.getObject("YZ_Plane"), [""])
sketch12.MapMode = "FlatFace"
sketch12.AttachmentOffset = App.Placement(V(0, 0, -16), App.Rotation())
sketch12.addGeometry(Part.Circle(V(-20, 16, 0), V(0, 0, 1), 2.25), False)
sketch12.addConstraint([
    Sketcher.Constraint("Diameter", 0, 4.5),
    Sketcher.Constraint("DistanceX", 0, 3, -1, 1, 20.0),
    Sketcher.Constraint("DistanceY", -1, 1, 0, 3, 16.0),
])
pocket3 = body.newObject("PartDesign::Pocket", "Pocket002")
pocket3.Profile = sketch12
pocket3.Type = "ThroughAll"
pocket3.Reversed = True

# Sketch on XZ plane
sketch13 = body.newObject("Sketcher::SketchObject", "Sketch012")
sketch13.AttachmentSupport = (doc.getObject("XZ_Plane"), [""])
sketch13.MapMode = "FlatFace"
sketch13.AttachmentOffset = App.Placement(V(0, 0, -26), App.Rotation())
sketch13.addGeometry([
    Part.Circle(V(20, 16, 0), V(0, 0, 1), 2.25),
    Part.Circle(V(0, 16, 0), V(0, 0, 1), 2.25),
    Part.Circle(V(-20, 16, 0), V(0, 0, 1), 2.25),
], False)
sketch13.addConstraint([
    Sketcher.Constraint("Equal", 0, 1),
    Sketcher.Constraint("Equal", 1, 2),
    Sketcher.Constraint("Symmetric", 0, 3, 2, 3, -2),
    Sketcher.Constraint("PointOnObject", 1, 3, -2),
    Sketcher.Constraint("Horizontal", 0, 3, 1, 3),
    Sketcher.Constraint("Diameter", 0, 4.5),
    Sketcher.Constraint("DistanceX", -1, 1, 0, 3, 20.0),
    Sketcher.Constraint("DistanceY", -1, 1, 0, 3, 16.0),
])
pocket4 = body.newObject("PartDesign::Pocket", "Pocket003")
pocket4.Profile = sketch13
pocket4.Length = 8
pocket4.Reversed = True

# Sketch on YZ plane
sketch14 = body.newObject("Sketcher::SketchObject", "Sketch013")
sketch14.AttachmentSupport = (doc.getObject("YZ_Plane"), [""])
sketch14.MapMode = "FlatFace"
sketch14.AttachmentOffset = App.Placement(V(0, 0, 16), App.Rotation())
sketch14.addGeometry(Part.Circle(V(-20, 16, 0), V(0, 0, 1), 3.75), False)
sketch14.addConstraint([
    Sketcher.Constraint("Diameter", 0, 7.5),
    Sketcher.Constraint("DistanceX", 0, 3, -1, 1, 20.0),
    Sketcher.Constraint("DistanceY", -1, 1, 0, 3, 16.0),
])
pocket5 = body.newObject("PartDesign::Pocket", "Pocket004")
pocket5.Profile = sketch14
pocket5.Length = 2

# Sketch on YZ plane
sketch15 = body.newObject("Sketcher::SketchObject", "Sketch014")
sketch15.AttachmentSupport = (doc.getObject("YZ_Plane"), [""])
sketch15.MapMode = "FlatFace"
sketch15.AttachmentOffset = App.Placement(V(0, 0, -16), App.Rotation())
sketch15.addGeometry(Part.Circle(V(-20, 16, 0), V(0, 0, 1), 3.75), False)
sketch15.addConstraint([
    Sketcher.Constraint("Diameter", 0, 7.5),
    Sketcher.Constraint("DistanceX", 0, 3, -1, 1, 20.0),
    Sketcher.Constraint("DistanceY", -1, 1, 0, 3, 16.0),
])
pocket6 = body.newObject("PartDesign::Pocket", "Pocket005")
pocket6.Profile = sketch15
pocket6.Length = 2
pocket6.Reversed = True

# Sketch on XZ plane
sketch16 = body.newObject("Sketcher::SketchObject", "Sketch015")
sketch16.AttachmentSupport = (doc.getObject("XZ_Plane"), [""])
sketch16.MapMode = "FlatFace"
sketch16.AttachmentOffset = App.Placement(V(0, 0, -26), App.Rotation())
sketch16.addGeometry([
    Part.Circle(V(20, 16, 0), V(0, 0, 1), 3.75),
    Part.Circle(V(0, 16, 0), V(0, 0, 1), 3.75),
    Part.Circle(V(-20, 16, 0), V(0, 0, 1), 3.75),
], False)
sketch16.addConstraint([
    Sketcher.Constraint("Equal", 0, 1),
    Sketcher.Constraint("Equal", 1, 2),
    Sketcher.Constraint("Symmetric", 0, 3, 2, 3, -2),
    Sketcher.Constraint("PointOnObject", 1, 3, -2),
    Sketcher.Constraint("Horizontal", 0, 3, 1, 3),
    Sketcher.Constraint("Diameter", 0, 7.5),
    Sketcher.Constraint("DistanceX", -1, 1, 0, 3, 20.0),
    Sketcher.Constraint("DistanceY", -1, 1, 0, 3, 16.0),
])
pocket7 = body.newObject("PartDesign::Pocket", "Pocket006")
pocket7.Profile = sketch16
pocket7.Length = 2
pocket7.Reversed = True
doc.recompute()

chamfer = body.newObject("PartDesign::Chamfer", "Chamfer")
chamfer.Base = (pocket7, edges_at(pocket7, [
    (0, 26, 0),
    (30, 26, 13),
    (-30, 26, 13),
    (-30, 13, 0),
    (30, 13, 0),
    (20, -20, 0),
    (-20, -20, 0),
    (0, -40, 0),
    (0, 26, 26),
    (-21.5, -6, 26),
    (-16, -17, 26),
    (16, -17, 26),
    (21.5, -6, 26),
    (-13, -34, 26),
    (13, -34, 26),
]))
chamfer.Size = 3

doc.recompute()
